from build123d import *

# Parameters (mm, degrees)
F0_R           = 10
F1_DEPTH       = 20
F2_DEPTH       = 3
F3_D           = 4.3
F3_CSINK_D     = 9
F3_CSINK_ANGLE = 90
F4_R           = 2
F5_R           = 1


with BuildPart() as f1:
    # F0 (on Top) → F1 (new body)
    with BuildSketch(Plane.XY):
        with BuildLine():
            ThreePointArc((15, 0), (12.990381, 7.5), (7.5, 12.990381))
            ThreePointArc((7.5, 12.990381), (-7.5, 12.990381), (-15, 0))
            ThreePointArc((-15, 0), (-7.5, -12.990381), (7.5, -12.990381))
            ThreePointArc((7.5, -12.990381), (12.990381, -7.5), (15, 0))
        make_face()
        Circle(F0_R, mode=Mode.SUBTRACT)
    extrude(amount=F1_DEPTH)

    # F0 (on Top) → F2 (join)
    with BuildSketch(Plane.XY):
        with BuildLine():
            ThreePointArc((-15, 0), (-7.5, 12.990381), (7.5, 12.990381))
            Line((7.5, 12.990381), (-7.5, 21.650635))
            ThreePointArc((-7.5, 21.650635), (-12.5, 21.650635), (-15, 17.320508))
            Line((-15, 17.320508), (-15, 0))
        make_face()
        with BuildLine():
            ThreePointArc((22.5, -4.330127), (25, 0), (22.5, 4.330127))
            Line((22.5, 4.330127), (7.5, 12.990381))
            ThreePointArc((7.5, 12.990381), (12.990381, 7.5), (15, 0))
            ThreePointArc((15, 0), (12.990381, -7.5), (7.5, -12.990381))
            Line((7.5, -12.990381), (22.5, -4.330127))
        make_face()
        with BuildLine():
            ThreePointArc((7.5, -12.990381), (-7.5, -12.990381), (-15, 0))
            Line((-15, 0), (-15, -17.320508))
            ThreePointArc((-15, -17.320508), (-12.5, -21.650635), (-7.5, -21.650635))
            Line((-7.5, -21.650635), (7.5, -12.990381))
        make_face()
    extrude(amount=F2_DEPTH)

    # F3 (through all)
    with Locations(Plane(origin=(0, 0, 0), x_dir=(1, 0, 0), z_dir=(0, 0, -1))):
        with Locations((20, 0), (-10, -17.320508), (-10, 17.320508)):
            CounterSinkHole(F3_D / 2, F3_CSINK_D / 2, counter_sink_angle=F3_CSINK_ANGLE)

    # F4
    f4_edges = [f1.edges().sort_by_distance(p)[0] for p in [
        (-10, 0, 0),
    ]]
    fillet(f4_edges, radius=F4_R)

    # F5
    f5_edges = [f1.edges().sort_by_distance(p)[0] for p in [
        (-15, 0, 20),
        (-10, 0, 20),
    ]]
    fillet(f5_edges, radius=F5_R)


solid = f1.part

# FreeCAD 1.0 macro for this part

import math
import FreeCAD as App
import Part
import Sketcher
from FreeCAD import Vector


def edges_at(feature, points):
    """Names of the edges that pass closest to the given points."""
    edges = feature.Shape.Edges
    near = lambda p: min(range(len(edges)), key=lambda i: edges[i].distToShape(Part.Vertex(*p))[0])
    return sorted({f"Edge{near(p) + 1}" for p in points})

doc = App.newDocument("Part")
body = doc.addObject("PartDesign::Body", "Body")

sketch1 = body.newObject("Sketcher::SketchObject", "Sketch")
sketch1.AttachmentSupport = (doc.getObject("XY_Plane"), [""])
sketch1.MapMode = "FlatFace"
sketch1.addGeometry(Part.ArcOfCircle(Part.Circle(Vector(0, 0, 0), Vector(0, 0, 1), 15), math.radians(0), math.radians(60)), False)
sketch1.addGeometry(Part.ArcOfCircle(Part.Circle(Vector(0, 0, 0), Vector(0, 0, 1), 15), math.radians(60), math.radians(180)), False)
sketch1.addGeometry(Part.ArcOfCircle(Part.Circle(Vector(0, 0, 0), Vector(0, 0, 1), 15), math.radians(-180), math.radians(-60)), False)
sketch1.addGeometry(Part.ArcOfCircle(Part.Circle(Vector(0, 0, 0), Vector(0, 0, 1), 15), math.radians(-60), math.radians(0)), False)
sketch1.addGeometry(Part.Circle(Vector(0, 0, 0), Vector(0, 0, 1), 10), False)
sketch1.addConstraint(Sketcher.Constraint("Tangent", 0, 2, 1, 1))
sketch1.addConstraint(Sketcher.Constraint("Tangent", 1, 2, 2, 1))
sketch1.addConstraint(Sketcher.Constraint("Tangent", 2, 2, 3, 1))
sketch1.addConstraint(Sketcher.Constraint("Tangent", 3, 2, 0, 1))
sketch1.addConstraint(Sketcher.Constraint("Coincident", 0, 3, -1, 1))
sketch1.addConstraint(Sketcher.Constraint("Coincident", 4, 3, -1, 1))
sketch1.addConstraint(Sketcher.Constraint("Equal", 0, 1))
sketch1.addConstraint(Sketcher.Constraint("PointOnObject", 1, 2, -1))
sketch1.addConstraint(Sketcher.Constraint("PointOnObject", 3, 2, -1))
sketch1.addConstraint(Sketcher.Constraint("Vertical", 0, 2, 2, 2))
sketch1.addConstraint(Sketcher.Constraint("Diameter", 4, 20.0))
sketch1.addConstraint(Sketcher.Constraint("Radius", 0, 15.0))
sketch1.addConstraint(Sketcher.Constraint("DistanceX", -1, 1, 0, 2, 7.5))
pad1 = body.newObject("PartDesign::Pad", "Pad")
pad1.Profile = sketch1
pad1.Length = 20

sketch2 = body.newObject("Sketcher::SketchObject", "Sketch001")
sketch2.AttachmentSupport = (doc.getObject("XY_Plane"), [""])
sketch2.MapMode = "FlatFace"
sketch2.addGeometry(Part.ArcOfCircle(Part.Circle(Vector(0, 0, 0), Vector(0, 0, 1), 15), math.radians(60), math.radians(180)), False)
sketch2.addGeometry(Part.LineSegment(Vector(7.5, 13, 0), Vector(-7.5, 21.7, 0)), False)
sketch2.addGeometry(Part.ArcOfCircle(Part.Circle(Vector(-10, 17.3, 0), Vector(0, 0, 1), 5), math.radians(60), math.radians(180)), False)
sketch2.addGeometry(Part.LineSegment(Vector(-15, 17.3, 0), Vector(-15, 0, 0)), False)
sketch2.addGeometry(Part.ArcOfCircle(Part.Circle(Vector(20, 0, 0), Vector(0, 0, 1), 5), math.radians(-60), math.radians(60)), False)
sketch2.addGeometry(Part.LineSegment(Vector(22.5, 4.3, 0), Vector(7.5, 13, 0)), False)
sketch2.addGeometry(Part.ArcOfCircle(Part.Circle(Vector(0, 0, 0), Vector(0, 0, 1), 15), math.radians(0), math.radians(60)), False)
sketch2.addGeometry(Part.ArcOfCircle(Part.Circle(Vector(0, 0, 0), Vector(0, 0, 1), 15), math.radians(-60), math.radians(0)), False)
sketch2.addGeometry(Part.LineSegment(Vector(7.5, -13, 0), Vector(22.5, -4.3, 0)), False)
sketch2.addGeometry(Part.ArcOfCircle(Part.Circle(Vector(0, 0, 0), Vector(0, 0, 1), 15), math.radians(-180), math.radians(-60)), False)
sketch2.addGeometry(Part.LineSegment(Vector(-15, 0, 0), Vector(-15, -17.3, 0)), False)
sketch2.addGeometry(Part.ArcOfCircle(Part.Circle(Vector(-10, -17.3, 0), Vector(0, 0, 1), 5), math.radians(-180), math.radians(-60)), False)
sketch2.addGeometry(Part.LineSegment(Vector(-7.5, -21.7, 0), Vector(7.5, -13, 0)), False)
sketch2.addConstraint(Sketcher.Constraint("Tangent", 0, 1, 1, 1))
sketch2.addConstraint(Sketcher.Constraint("Tangent", 1, 2, 2, 1))
sketch2.addConstraint(Sketcher.Constraint("Tangent", 2, 2, 3, 1))
sketch2.addConstraint(Sketcher.Constraint("Tangent", 3, 2, 0, 2))
sketch2.addConstraint(Sketcher.Constraint("Tangent", 4, 2, 5, 1))
sketch2.addConstraint(Sketcher.Constraint("Tangent", 5, 2, 6, 2))
sketch2.addConstraint(Sketcher.Constraint("Tangent", 6, 1, 7, 2))
sketch2.addConstraint(Sketcher.Constraint("Tangent", 7, 1, 8, 1))
sketch2.addConstraint(Sketcher.Constraint("Tangent", 8, 2, 4, 1))
sketch2.addConstraint(Sketcher.Constraint("Tangent", 9, 1, 10, 1))
sketch2.addConstraint(Sketcher.Constraint("Tangent", 10, 2, 11, 1))
sketch2.addConstraint(Sketcher.Constraint("Tangent", 11, 2, 12, 1))
sketch2.addConstraint(Sketcher.Constraint("Tangent", 12, 2, 9, 2))
sketch2.addConstraint(Sketcher.Constraint("Vertical", 3))
sketch2.addConstraint(Sketcher.Constraint("Vertical", 10))
sketch2.addConstraint(Sketcher.Constraint("Coincident", 0, 3, -1, 1))
sketch2.addConstraint(Sketcher.Constraint("Coincident", 6, 3, -1, 1))
sketch2.addConstraint(Sketcher.Constraint("Coincident", 9, 3, -1, 1))
sketch2.addConstraint(Sketcher.Constraint("Coincident", 5, 2, 0, 1))
sketch2.addConstraint(Sketcher.Constraint("Coincident", 12, 2, 7, 1))
sketch2.addConstraint(Sketcher.Constraint("Equal", 2, 4))
sketch2.addConstraint(Sketcher.Constraint("Equal", 6, 7))
sketch2.addConstraint(Sketcher.Constraint("Equal", 4, 11))
sketch2.addConstraint(Sketcher.Constraint("PointOnObject", 4, 3, -1))
sketch2.addConstraint(Sketcher.Constraint("PointOnObject", 6, 1, -1))
sketch2.addConstraint(Sketcher.Constraint("Equal", 1, 5))
sketch2.addConstraint(Sketcher.Constraint("Radius", 0, 15.0))
sketch2.addConstraint(Sketcher.Constraint("Radius", 2, 5.0))
pad2 = body.newObject("PartDesign::Pad", "Pad001")
pad2.Profile = sketch2
pad2.Length = 3

sketch3 = body.newObject("Sketcher::SketchObject", "Sketch002")
sketch3.AttachmentSupport = (doc.getObject("XY_Plane"), [""])
sketch3.MapMode = "FlatFace"
sketch3.addGeometry(Part.Circle(Vector(20, 0, 0), Vector(0, 0, 1), 2.1), False)
sketch3.addGeometry(Part.Circle(Vector(-10, 17.3, 0), Vector(0, 0, 1), 2.1), False)
sketch3.addGeometry(Part.Circle(Vector(-10, -17.3, 0), Vector(0, 0, 1), 2.1), False)
sketch3.addConstraint(Sketcher.Constraint("Equal", 0, 1))
sketch3.addConstraint(Sketcher.Constraint("Equal", 1, 2))
sketch3.addConstraint(Sketcher.Constraint("Symmetric", 1, 3, 2, 3, -1))
sketch3.addConstraint(Sketcher.Constraint("PointOnObject", 0, 3, -1))
sketch3.addConstraint(Sketcher.Constraint("Diameter", 0, 4.3))
sketch3.addConstraint(Sketcher.Constraint("DistanceX", -1, 1, 0, 3, 20.0))
sketch3.addConstraint(Sketcher.Constraint("DistanceX", 1, 3, -1, 1, 10.0))
sketch3.addConstraint(Sketcher.Constraint("DistanceY", -1, 1, 1, 3, 17.320508))
doc.recompute()
hole = body.newObject("PartDesign::Hole", "Hole")
hole.Profile = sketch3
hole.ThreadType = "None"
hole.Diameter = 4.3
hole.DepthType = "ThroughAll"
hole.HoleCutType = "Countersink"
hole.HoleCutDiameter = 9
hole.HoleCutCountersinkAngle = 90
hole.Reversed = True
doc.recompute()

fillet = body.newObject("PartDesign::Fillet", "Fillet")
fillet.Base = (hole, edges_at(hole, [(-10, 0, 0)]))
fillet.Radius = 2
doc.recompute()

fillet2 = body.newObject("PartDesign::Fillet", "Fillet001")
fillet2.Base = (fillet, edges_at(fillet, [(-7.5, 12.99, 20), (-10, 0, 20)]))
fillet2.Radius = 1

doc.recompute()
